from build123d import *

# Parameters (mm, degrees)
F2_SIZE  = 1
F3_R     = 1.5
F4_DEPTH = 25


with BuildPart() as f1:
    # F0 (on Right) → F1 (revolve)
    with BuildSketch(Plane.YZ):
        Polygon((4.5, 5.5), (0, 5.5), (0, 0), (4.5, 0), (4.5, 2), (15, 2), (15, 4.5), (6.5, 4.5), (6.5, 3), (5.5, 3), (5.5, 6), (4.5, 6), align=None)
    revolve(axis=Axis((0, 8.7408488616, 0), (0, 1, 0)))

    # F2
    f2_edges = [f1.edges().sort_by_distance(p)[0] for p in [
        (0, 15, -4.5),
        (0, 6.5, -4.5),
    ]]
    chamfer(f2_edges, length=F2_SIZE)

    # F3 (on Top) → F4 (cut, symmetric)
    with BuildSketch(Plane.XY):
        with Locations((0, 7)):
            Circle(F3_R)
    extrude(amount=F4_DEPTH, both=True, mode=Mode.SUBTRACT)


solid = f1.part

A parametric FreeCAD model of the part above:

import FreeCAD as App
import Part
import Sketcher


def edges_at(feature, points):
    """Names of the edges that pass closest to the given points."""
    edges = feature.Shape.Edges
    near = lambda p: min(range(len(edges)), key=lambda i: edges[i].distToShape(Part.Vertex(*p))[0])
    return sorted({f"Edge{near(p) + 1}" for p in points})

doc = App.newDocument("Part")
body = doc.addObject("PartDesign::Body", "Body")

sketch1 = body.newObject("Sketcher::SketchObject", "Sketch")
sketch1.AttachmentSupport = (doc.getObject("YZ_Plane"), [""])
sketch1.MapMode = "FlatFace"
sketch1.addGeometry(Part.LineSegment(App.Vector(4.5, 5.5, 0), App.Vector(0, 5.5, 0)), False)
sketch1.addGeometry(Part.LineSegment(App.Vector(0, 5.5, 0), App.Vector(0, 0, 0)), False)
sketch1.addGeometry(Part.LineSegment(App.Vector(0, 0, 0), App.Vector(4.5, 0, 0)), False)
sketch1.addGeometry(Part.LineSegment(App.Vector(4.5, 0, 0), App.Vector(4.5, 2, 0)), False)
sketch1.addGeometry(Part.LineSegment(App.Vector(4.5, 2, 0), App.Vector(15, 2, 0)), False)
sketch1.addGeometry(Part.LineSegment(App.Vector(15, 2, 0), App.Vector(15, 4.5, 0)), False)
sketch1.addGeometry(Part.LineSegment(App.Vector(15, 4.5, 0), App.Vector(6.5, 4.5, 0)), False)
sketch1.addGeometry(Part.LineSegment(App.Vector(6.5, 4.5, 0), App.Vector(6.5, 3, 0)), False)
sketch1.addGeometry(Part.LineSegment(App.Vector(6.5, 3, 0), App.Vector(5.5, 3, 0)), False)
sketch1.addGeometry(Part.LineSegment(App.Vector(5.5, 3, 0), App.Vector(5.5, 6, 0)), False)
sketch1.addGeometry(Part.LineSegment(App.Vector(5.5, 6, 0), App.Vector(4.5, 6, 0)), False)
sketch1.addGeometry(Part.LineSegment(App.Vector(4.5, 6, 0), App.Vector(4.5, 5.5, 0)), False)
sketch1.addConstraint(Sketcher.Constraint("Coincident", 0, 2, 1, 1))
sketch1.addConstraint(Sketcher.Constraint("Coincident", 1, 2, 2, 1))
sketch1.addConstraint(Sketcher.Constraint("Coincident", 2, 2, 3, 1))
sketch1.addConstraint(Sketcher.Constraint("Coincident", 3, 2, 4, 1))
sketch1.addConstraint(Sketcher.Constraint("Coincident", 4, 2, 5, 1))
sketch1.addConstraint(Sketcher.Constraint("Coincident", 5, 2, 6, 1))
sketch1.addConstraint(Sketcher.Constraint("Coincident", 6, 2, 7, 1))
sketch1.addConstraint(Sketcher.Constraint("Coincident", 7, 2, 8, 1))
sketch1.addConstraint(Sketcher.Constraint("Coincident", 8, 2, 9, 1))
sketch1.addConstraint(Sketcher.Constraint("Coincident", 9, 2, 10, 1))
sketch1.addConstraint(Sketcher.Constraint("Coincident", 10, 2, 11, 1))
sketch1.addConstraint(Sketcher.Constraint("Coincident", 11, 2, 0, 1))
sketch1.addConstraint(Sketcher.Constraint("Horizontal", 0))
sketch1.addConstraint(Sketcher.Constraint("Vertical", 1))
sketch1.addConstraint(Sketcher.Constraint("Horizontal", 2))
sketch1.addConstraint(Sketcher.Constraint("Vertical", 3))
sketch1.addConstraint(Sketcher.Constraint("Horizontal", 4))
sketch1.addConstraint(Sketcher.Constraint("Vertical", 5))
sketch1.addConstraint(Sketcher.Constraint("Horizontal", 6))
sketch1.addConstraint(Sketcher.Constraint("Vertical", 7))
sketch1.addConstraint(Sketcher.Constraint("Horizontal", 8))
sketch1.addConstraint(Sketcher.Constraint("Vertical", 9))
sketch1.addConstraint(Sketcher.Constraint("Horizontal", 10))
sketch1.addConstraint(Sketcher.Constraint("Vertical", 11))
sketch1.addConstraint(Sketcher.Constraint("Coincident", 1, 2, -1, 1))
sketch1.addConstraint(Sketcher.Constraint("Vertical", 3, 2, 10, 2))
sketch1.addConstraint(Sketcher.Constraint("Equal", 8, 10))
sketch1.addConstraint(Sketcher.Constraint("DistanceX", 8, 2, 8, 1, 1.0))
sketch1.addConstraint(Sketcher.Constraint("DistanceY", 3, 1, 3, 2, 2.0))
sketch1.addConstraint(Sketcher.Constraint("DistanceY", 9, 1, 9, 2, 3.0))
sketch1.addConstraint(Sketcher.Constraint("DistanceX", 0, 2, 0, 1, 4.5))
sketch1.addConstraint(Sketcher.Constraint("DistanceX", 4, 1, 4, 2, 10.5))
sketch1.addConstraint(Sketcher.Constraint("DistanceY", 1, 2, 1, 1, 5.5))
sketch1.addConstraint(Sketcher.Constraint("DistanceY", 5, 1, 5, 2, 2.5))
sketch1.addConstraint(Sketcher.Constraint("DistanceY", 7, 2, 7, 1, 1.5))
revolution = body.newObject("PartDesign::Revolution", "Revolution")
revolution.Profile = sketch1
revolution.ReferenceAxis = (sketch1, ["H_Axis"])
revolution.Angle = 360
doc.recompute()

chamfer = body.newObject("PartDesign::Chamfer", "Chamfer")
chamfer.Base = (revolution, edges_at(revolution, [(0, 15, -4.5), (0, 6.5, -4.5)]))
chamfer.Size = 1

sketch2 = body.newObject("Sketcher::SketchObject", "Sketch001")
sketch2.AttachmentSupport = (doc.getObject("XY_Plane"), [""])
sketch2.MapMode = "FlatFace"
sketch2.addGeometry(Part.Circle(App.Vector(0, 7, 0), App.Vector(0, 0, 1), 1.5), False)
sketch2.addConstraint(Sketcher.Constraint("PointOnObject", 0, 3, -2))
sketch2.addConstraint(Sketcher.Constraint("Diameter", 0, 3.0))
sketch2.addConstraint(Sketcher.Constraint("DistanceY", -1, 1, 0, 3, 7.0))
pocket1 = body.newObject("PartDesign::Pocket", "Pocket")
pocket1.Profile = sketch2
pocket1.Length = 50
pocket1.Midplane = True

doc.recompute()
